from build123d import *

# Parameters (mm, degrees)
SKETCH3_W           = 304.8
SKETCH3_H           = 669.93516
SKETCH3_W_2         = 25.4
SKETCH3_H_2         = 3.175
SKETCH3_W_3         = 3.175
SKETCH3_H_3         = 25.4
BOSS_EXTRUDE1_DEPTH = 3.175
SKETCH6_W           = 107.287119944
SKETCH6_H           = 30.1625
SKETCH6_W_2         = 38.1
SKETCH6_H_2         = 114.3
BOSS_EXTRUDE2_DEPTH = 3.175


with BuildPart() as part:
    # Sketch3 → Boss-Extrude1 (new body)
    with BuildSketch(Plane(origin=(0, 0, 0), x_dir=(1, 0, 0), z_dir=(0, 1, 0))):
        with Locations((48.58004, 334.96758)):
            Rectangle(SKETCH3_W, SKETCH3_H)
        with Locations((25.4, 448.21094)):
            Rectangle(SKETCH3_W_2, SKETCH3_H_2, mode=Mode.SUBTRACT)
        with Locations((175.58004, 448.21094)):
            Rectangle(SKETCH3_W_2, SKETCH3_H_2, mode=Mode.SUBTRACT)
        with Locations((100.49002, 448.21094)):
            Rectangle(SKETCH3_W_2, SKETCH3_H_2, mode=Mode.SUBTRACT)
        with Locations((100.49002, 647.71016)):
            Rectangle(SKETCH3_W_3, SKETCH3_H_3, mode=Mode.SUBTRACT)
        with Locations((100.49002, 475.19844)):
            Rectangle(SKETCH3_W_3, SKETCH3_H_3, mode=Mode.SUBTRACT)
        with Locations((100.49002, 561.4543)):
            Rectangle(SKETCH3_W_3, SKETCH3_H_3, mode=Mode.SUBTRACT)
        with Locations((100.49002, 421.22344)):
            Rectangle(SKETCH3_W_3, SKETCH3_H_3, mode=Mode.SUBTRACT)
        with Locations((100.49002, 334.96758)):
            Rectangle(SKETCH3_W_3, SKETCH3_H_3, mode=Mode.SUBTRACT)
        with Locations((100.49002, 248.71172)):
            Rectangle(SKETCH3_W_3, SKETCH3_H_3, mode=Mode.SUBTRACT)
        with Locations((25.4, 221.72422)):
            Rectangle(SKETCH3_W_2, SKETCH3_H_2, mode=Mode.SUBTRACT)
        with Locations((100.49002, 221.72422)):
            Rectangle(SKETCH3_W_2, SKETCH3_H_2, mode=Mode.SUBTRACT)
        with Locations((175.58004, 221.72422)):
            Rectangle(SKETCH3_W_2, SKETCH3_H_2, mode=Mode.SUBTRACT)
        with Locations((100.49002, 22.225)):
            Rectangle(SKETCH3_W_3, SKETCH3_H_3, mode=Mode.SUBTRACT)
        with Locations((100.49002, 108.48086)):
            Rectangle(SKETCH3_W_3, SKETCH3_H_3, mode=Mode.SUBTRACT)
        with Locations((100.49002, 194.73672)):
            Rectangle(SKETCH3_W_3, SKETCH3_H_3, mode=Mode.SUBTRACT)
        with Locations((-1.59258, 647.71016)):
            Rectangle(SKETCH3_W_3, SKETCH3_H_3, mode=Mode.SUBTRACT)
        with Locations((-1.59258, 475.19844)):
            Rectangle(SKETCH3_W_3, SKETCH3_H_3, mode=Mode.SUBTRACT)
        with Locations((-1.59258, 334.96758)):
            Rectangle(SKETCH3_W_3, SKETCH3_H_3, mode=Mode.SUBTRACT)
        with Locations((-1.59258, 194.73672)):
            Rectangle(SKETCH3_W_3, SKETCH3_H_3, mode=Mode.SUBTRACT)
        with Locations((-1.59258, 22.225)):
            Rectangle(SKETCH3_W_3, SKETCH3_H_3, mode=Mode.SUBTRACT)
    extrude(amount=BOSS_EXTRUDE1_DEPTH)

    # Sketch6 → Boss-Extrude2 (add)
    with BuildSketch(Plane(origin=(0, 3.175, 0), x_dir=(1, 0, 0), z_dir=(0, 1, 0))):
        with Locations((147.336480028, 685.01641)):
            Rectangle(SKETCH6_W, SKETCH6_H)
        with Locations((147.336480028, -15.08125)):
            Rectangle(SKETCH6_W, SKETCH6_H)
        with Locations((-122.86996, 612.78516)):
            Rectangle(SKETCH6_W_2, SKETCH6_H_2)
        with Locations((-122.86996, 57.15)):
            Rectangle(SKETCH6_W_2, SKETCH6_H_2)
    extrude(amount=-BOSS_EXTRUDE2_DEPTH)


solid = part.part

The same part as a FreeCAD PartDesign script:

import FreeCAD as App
import Part
import Sketcher
from FreeCAD import Vector
Q = App.Units.Quantity

doc = App.newDocument("Part")
body = doc.addObject("PartDesign::Body", "Body")

# Sketch on XZ plane
sketch1 = body.newObject("Sketcher::SketchObject", "Sketch")
sketch1.AttachmentSupport = (doc.getObject("XZ_Plane"), [""])
sketch1.MapMode = "FlatFace"
sketch1.addGeometry([
    Part.LineSegment(Vector(-103.8, -669.9, 0), Vector(-103.8, 0, 0)),  # 0
    Part.LineSegment(Vector(-103.8, 0, 0), Vector(201, 0, 0)),  # 1
    Part.LineSegment(Vector(201, 0, 0), Vector(201, -669.9, 0)),  # 2
    Part.LineSegment(Vector(201, -669.9, 0), Vector(-103.8, -669.9, 0)),  # 3
    Part.LineSegment(Vector(0, -9.5, 0), Vector(-3.2, -9.5, 0)),  # 4
    Part.LineSegment(Vector(-3.2, -9.5, 0), Vector(-3.2, -34.9, 0)),  # 5
    Part.LineSegment(Vector(-3.2, -34.9, 0), Vector(0, -34.9, 0)),  # 6
    Part.LineSegment(Vector(0, -34.9, 0), Vector(0, -9.5, 0)),  # 7
    Part.LineSegment(Vector(0, -182, 0), Vector(-3.2, -182, 0)),  # 8
    Part.LineSegment(Vector(-3.2, -182, 0), Vector(-3.2, -207.4, 0)),  # 9
    Part.LineSegment(Vector(-3.2, -207.4, 0), Vector(0, -207.4, 0)),  # 10
    Part.LineSegment(Vector(0, -207.4, 0), Vector(0, -182, 0)),  # 11
    Part.LineSegment(Vector(38.1, -220.1, 0), Vector(12.7, -220.1, 0)),  # 12
    Part.LineSegment(Vector(12.7, -220.1, 0), Vector(12.7, -223.3, 0)),  # 13
    Part.LineSegment(Vector(12.7, -223.3, 0), Vector(38.1, -223.3, 0)),  # 14
    Part.LineSegment(Vector(38.1, -223.3, 0), Vector(38.1, -220.1, 0)),  # 15
    Part.LineSegment(Vector(102.1, -9.5, 0), Vector(98.9, -9.5, 0)),  # 16
    Part.LineSegment(Vector(98.9, -9.5, 0), Vector(98.9, -34.9, 0)),  # 17
    Part.LineSegment(Vector(98.9, -34.9, 0), Vector(102.1, -34.9, 0)),  # 18
    Part.LineSegment(Vector(102.1, -34.9, 0), Vector(102.1, -9.5, 0)),  # 19
    Part.LineSegment(Vector(102.1, -95.8, 0), Vector(98.9, -95.8, 0)),  # 20
    Part.LineSegment(Vector(98.9, -95.8, 0), Vector(98.9, -121.2, 0)),  # 21
    Part.LineSegment(Vector(98.9, -121.2, 0), Vector(102.1, -121.2, 0)),  # 22
    Part.LineSegment(Vector(102.1, -121.2, 0), Vector(102.1, -95.8, 0)),  # 23
    Part.LineSegment(Vector(102.1, -182, 0), Vector(98.9, -182, 0)),  # 24
    Part.LineSegment(Vector(98.9, -182, 0), Vector(98.9, -207.4, 0)),  # 25
    Part.LineSegment(Vector(98.9, -207.4, 0), Vector(102.1, -207.4, 0)),  # 26
    Part.LineSegment(Vector(102.1, -207.4, 0), Vector(102.1, -182, 0)),  # 27
    Part.LineSegment(Vector(113.2, -220.1, 0), Vector(87.8, -220.1, 0)),  # 28
    Part.LineSegment(Vector(87.8, -220.1, 0), Vector(87.8, -223.3, 0)),  # 29
    Part.LineSegment(Vector(87.8, -223.3, 0), Vector(113.2, -223.3, 0)),  # 30
    Part.LineSegment(Vector(113.2, -223.3, 0), Vector(113.2, -220.1, 0)),  # 31
    Part.LineSegment(Vector(102.1, -236, 0), Vector(98.9, -236, 0)),  # 32
    Part.LineSegment(Vector(98.9, -236, 0), Vector(98.9, -261.4, 0)),  # 33
    Part.LineSegment(Vector(98.9, -261.4, 0), Vector(102.1, -261.4, 0)),  # 34
    Part.LineSegment(Vector(102.1, -261.4, 0), Vector(102.1, -236, 0)),  # 35
    Part.LineSegment(Vector(188.3, -220.1, 0), Vector(162.9, -220.1, 0)),  # 36
    Part.LineSegment(Vector(162.9, -220.1, 0), Vector(162.9, -223.3, 0)),  # 37
    Part.LineSegment(Vector(162.9, -223.3, 0), Vector(188.3, -223.3, 0)),  # 38
    Part.LineSegment(Vector(188.3, -223.3, 0), Vector(188.3, -220.1, 0)),  # 39
    Part.LineSegment(Vector(0, -322.3, 0), Vector(-3.2, -322.3, 0)),  # 40
    Part.LineSegment(Vector(-3.2, -322.3, 0), Vector(-3.2, -347.7, 0)),  # 41
    Part.LineSegment(Vector(-3.2, -347.7, 0), Vector(0, -347.7, 0)),  # 42
    Part.LineSegment(Vector(0, -347.7, 0), Vector(0, -322.3, 0)),  # 43
    Part.LineSegment(Vector(0, -462.5, 0), Vector(-3.2, -462.5, 0)),  # 44
    Part.LineSegment(Vector(-3.2, -462.5, 0), Vector(-3.2, -487.9, 0)),  # 45
    Part.LineSegment(Vector(-3.2, -487.9, 0), Vector(0, -487.9, 0)),  # 46
    Part.LineSegment(Vector(0, -487.9, 0), Vector(0, -462.5, 0)),  # 47
    Part.LineSegment(Vector(38.1, -446.6, 0), Vector(12.7, -446.6, 0)),  # 48
    Part.LineSegment(Vector(12.7, -446.6, 0), Vector(12.7, -449.8, 0)),  # 49
    Part.LineSegment(Vector(12.7, -449.8, 0), Vector(38.1, -449.8, 0)),  # 50
    Part.LineSegment(Vector(38.1, -449.8, 0), Vector(38.1, -446.6, 0)),  # 51
    Part.LineSegment(Vector(0, -635, 0), Vector(-3.2, -635, 0)),  # 52
    Part.LineSegment(Vector(-3.2, -635, 0), Vector(-3.2, -660.4, 0)),  # 53
    Part.LineSegment(Vector(-3.2, -660.4, 0), Vector(0, -660.4, 0)),  # 54
    Part.LineSegment(Vector(0, -660.4, 0), Vector(0, -635, 0)),  # 55
    Part.LineSegment(Vector(102.1, -322.3, 0), Vector(98.9, -322.3, 0)),  # 56
    Part.LineSegment(Vector(98.9, -322.3, 0), Vector(98.9, -347.7, 0)),  # 57
    Part.LineSegment(Vector(98.9, -347.7, 0), Vector(102.1, -347.7, 0)),  # 58
    Part.LineSegment(Vector(102.1, -347.7, 0), Vector(102.1, -322.3, 0)),  # 59
    Part.LineSegment(Vector(102.1, -408.5, 0), Vector(98.9, -408.5, 0)),  # 60
    Part.LineSegment(Vector(98.9, -408.5, 0), Vector(98.9, -433.9, 0)),  # 61
    Part.LineSegment(Vector(98.9, -433.9, 0), Vector(102.1, -433.9, 0)),  # 62
    Part.LineSegment(Vector(102.1, -433.9, 0), Vector(102.1, -408.5, 0)),  # 63
    Part.LineSegment(Vector(113.2, -446.6, 0), Vector(87.8, -446.6, 0)),  # 64
    Part.LineSegment(Vector(87.8, -446.6, 0), Vector(87.8, -449.8, 0)),  # 65
    Part.LineSegment(Vector(87.8, -449.8, 0), Vector(113.2, -449.8, 0)),  # 66
    Part.LineSegment(Vector(113.2, -449.8, 0), Vector(113.2, -446.6, 0)),  # 67
    Part.LineSegment(Vector(102.1, -462.5, 0), Vector(98.9, -462.5, 0)),  # 68
    Part.LineSegment(Vector(98.9, -462.5, 0), Vector(98.9, -487.9, 0)),  # 69
    Part.LineSegment(Vector(98.9, -487.9, 0), Vector(102.1, -487.9, 0)),  # 70
    Part.LineSegment(Vector(102.1, -487.9, 0), Vector(102.1, -462.5, 0)),  # 71
    Part.LineSegment(Vector(188.3, -446.6, 0), Vector(162.9, -446.6, 0)),  # 72
    Part.LineSegment(Vector(162.9, -446.6, 0), Vector(162.9, -449.8, 0)),  # 73
    Part.LineSegment(Vector(162.9, -449.8, 0), Vector(188.3, -449.8, 0)),  # 74
    Part.LineSegment(Vector(188.3, -449.8, 0), Vector(188.3, -446.6, 0)),  # 75
    Part.LineSegment(Vector(102.1, -548.8, 0), Vector(98.9, -548.8, 0)),  # 76
    Part.LineSegment(Vector(98.9, -548.8, 0), Vector(98.9, -574.2, 0)),  # 77
    Part.LineSegment(Vector(98.9, -574.2, 0), Vector(102.1, -574.2, 0)),  # 78
    Part.LineSegment(Vector(102.1, -574.2, 0), Vector(102.1, -548.8, 0)),  # 79
    Part.LineSegment(Vector(102.1, -635, 0), Vector(98.9, -635, 0)),  # 80
    Part.LineSegment(Vector(98.9, -635, 0), Vector(98.9, -660.4, 0)),  # 81
    Part.LineSegment(Vector(98.9, -660.4, 0), Vector(102.1, -660.4, 0)),  # 82
    Part.LineSegment(Vector(102.1, -660.4, 0), Vector(102.1, -635, 0)),  # 83
], False)
sketch1.addConstraint([
    Sketcher.Constraint("Coincident", 0, 2, 1, 1),
    Sketcher.Constraint("Coincident", 1, 2, 2, 1),
    Sketcher.Constraint("Coincident", 2, 2, 3, 1),
    Sketcher.Constraint("Coincident", 3, 2, 0, 1),
    Sketcher.Constraint("Coincident", 4, 2, 5, 1),
    Sketcher.Constraint("Coincident", 5, 2, 6, 1),
    Sketcher.Constraint("Coincident", 6, 2, 7, 1),
    Sketcher.Constraint("Coincident", 7, 2, 4, 1),
    Sketcher.Constraint("Coincident", 8, 2, 9, 1),
    Sketcher.Constraint("Coincident", 9, 2, 10, 1),
    Sketcher.Constraint("Coincident", 10, 2, 11, 1),
    Sketcher.Constraint("Coincident", 11, 2, 8, 1),
    Sketcher.Constraint("Coincident", 12, 2, 13, 1),
    Sketcher.Constraint("Coincident", 13, 2, 14, 1),
    Sketcher.Constraint("Coincident", 14, 2, 15, 1),
    Sketcher.Constraint("Coincident", 15, 2, 12, 1),
    Sketcher.Constraint("Coincident", 16, 2, 17, 1),
    Sketcher.Constraint("Coincident", 17, 2, 18, 1),
    Sketcher.Constraint("Coincident", 18, 2, 19, 1),
    Sketcher.Constraint("Coincident", 19, 2, 16, 1),
    Sketcher.Constraint("Coincident", 20, 2, 21, 1),
    Sketcher.Constraint("Coincident", 21, 2, 22, 1),
    Sketcher.Constraint("Coincident", 22, 2, 23, 1),
    Sketcher.Constraint("Coincident", 23, 2, 20, 1),
    Sketcher.Constraint("Coincident", 24, 2, 25, 1),
    Sketcher.Constraint("Coincident", 25, 2, 26, 1),
    Sketcher.Constraint("Coincident", 26, 2, 27, 1),
    Sketcher.Constraint("Coincident", 27, 2, 24, 1),
    Sketcher.Constraint("Coincident", 28, 2, 29, 1),
    Sketcher.Constraint("Coincident", 29, 2, 30, 1),
    Sketcher.Constraint("Coincident", 30, 2, 31, 1),
    Sketcher.Constraint("Coincident", 31, 2, 28, 1),
    Sketcher.Constraint("Coincident", 32, 2, 33, 1),
    Sketcher.Constraint("Coincident", 33, 2, 34, 1),
    Sketcher.Constraint("Coincident", 34, 2, 35, 1),
    Sketcher.Constraint("Coincident", 35, 2, 32, 1),
    Sketcher.Constraint("Coincident", 36, 2, 37, 1),
    Sketcher.Constraint("Coincident", 37, 2, 38, 1),
    Sketcher.Constraint("Coincident", 38, 2, 39, 1),
    Sketcher.Constraint("Coincident", 39, 2, 36, 1),
    Sketcher.Constraint("Coincident", 40, 2, 41, 1),
    Sketcher.Constraint("Coincident", 41, 2, 42, 1),
    Sketcher.Constraint("Coincident", 42, 2, 43, 1),
    Sketcher.Constraint("Coincident", 43, 2, 40, 1),
    Sketcher.Constraint("Coincident", 44, 2, 45, 1),
    Sketcher.Constraint("Coincident", 45, 2, 46, 1),
    Sketcher.Constraint("Coincident", 46, 2, 47, 1),
    Sketcher.Constraint("Coincident", 47, 2, 44, 1),
    Sketcher.Constraint("Coincident", 48, 2, 49, 1),
    Sketcher.Constraint("Coincident", 49, 2, 50, 1),
    Sketcher.Constraint("Coincident", 50, 2, 51, 1),
    Sketcher.Constraint("Coincident", 51, 2, 48, 1),
    Sketcher.Constraint("Coincident", 52, 2, 53, 1),
    Sketcher.Constraint("Coincident", 53, 2, 54, 1),
    Sketcher.Constraint("Coincident", 54, 2, 55, 1),
    Sketcher.Constraint("Coincident", 55, 2, 52, 1),
    Sketcher.Constraint("Coincident", 56, 2, 57, 1),
    Sketcher.Constraint("Coincident", 57, 2, 58, 1),
    Sketcher.Constraint("Coincident", 58, 2, 59, 1),
    Sketcher.Constraint("Coincident", 59, 2, 56, 1),
    Sketcher.Constraint("Coincident", 60, 2, 61, 1),
    Sketcher.Constraint("Coincident", 61, 2, 62, 1),
    Sketcher.Constraint("Coincident", 62, 2, 63, 1),
    Sketcher.Constraint("Coincident", 63, 2, 60, 1),
    Sketcher.Constraint("Coincident", 64, 2, 65, 1),
    Sketcher.Constraint("Coincident", 65, 2, 66, 1),
    Sketcher.Constraint("Coincident", 66, 2, 67, 1),
    Sketcher.Constraint("Coincident", 67, 2, 64, 1),
    Sketcher.Constraint("Coincident", 68, 2, 69, 1),
    Sketcher.Constraint("Coincident", 69, 2, 70, 1),
    Sketcher.Constraint("Coincident", 70, 2, 71, 1),
    Sketcher.Constraint("Coincident", 71, 2, 68, 1),
    Sketcher.Constraint("Coincident", 72, 2, 73, 1),
    Sketcher.Constraint("Coincident", 73, 2, 74, 1),
    Sketcher.Constraint("Coincident", 74, 2, 75, 1),
    Sketcher.Constraint("Coincident", 75, 2, 72, 1),
    Sketcher.Constraint("Coincident", 76, 2, 77, 1),
    Sketcher.Constraint("Coincident", 77, 2, 78, 1),
    Sketcher.Constraint("Coincident", 78, 2, 79, 1),
    Sketcher.Constraint("Coincident", 79, 2, 76, 1),
    Sketcher.Constraint("Coincident", 80, 2, 81, 1),
    Sketcher.Constraint("Coincident", 81, 2, 82, 1),
    Sketcher.Constraint("Coincident", 82, 2, 83, 1),
    Sketcher.Constraint("Coincident", 83, 2, 80, 1),
    Sketcher.Constraint("Vertical", 0),
    Sketcher.Constraint("Horizontal", 1),
    Sketcher.Constraint("Vertical", 2),
    Sketcher.Constraint("Horizontal", 3),
    Sketcher.Constraint("Horizontal", 4),
    Sketcher.Constraint("Vertical", 5),
    Sketcher.Constraint("Horizontal", 6),
    Sketcher.Constraint("Vertical", 7),
    Sketcher.Constraint("Horizontal", 8),
    Sketcher.Constraint("Vertical", 9),
    Sketcher.Constraint("Horizontal", 10),
    Sketcher.Constraint("Vertical", 11),
    Sketcher.Constraint("Horizontal", 12),
    Sketcher.Constraint("Vertical", 13),
    Sketcher.Constraint("Horizontal", 14),
    Sketcher.Constraint("Vertical", 15),
    Sketcher.Constraint("Horizontal", 16),
    Sketcher.Constraint("Vertical", 17),
    Sketcher.Constraint("Horizontal", 18),
    Sketcher.Constraint("Vertical", 19),
    Sketcher.Constraint("Horizontal", 20),
    Sketcher.Constraint("Vertical", 21),
    Sketcher.Constraint("Horizontal", 22),
    Sketcher.Constraint("Vertical", 23),
    Sketcher.Constraint("Horizontal", 24),
    Sketcher.Constraint("Vertical", 25),
    Sketcher.Constraint("Horizontal", 26),
    Sketcher.Constraint("Vertical", 27),
    Sketcher.Constraint("Horizontal", 28),
    Sketcher.Constraint("Vertical", 29),
    Sketcher.Constraint("Horizontal", 30),
    Sketcher.Constraint("Vertical", 31),
    Sketcher.Constraint("Horizontal", 32),
    Sketcher.Constraint("Vertical", 33),
    Sketcher.Constraint("Horizontal", 34),
    Sketcher.Constraint("Vertical", 35),
    Sketcher.Constraint("Horizontal", 36),
    Sketcher.Constraint("Vertical", 37),
    Sketcher.Constraint("Horizontal", 38),
    Sketcher.Constraint("Vertical", 39),
    Sketcher.Constraint("Horizontal", 40),
    Sketcher.Constraint("Vertical", 41),
    Sketcher.Constraint("Horizontal", 42),
    Sketcher.Constraint("Vertical", 43),
    Sketcher.Constraint("Horizontal", 44),
    Sketcher.Constraint("Vertical", 45),
    Sketcher.Constraint("Horizontal", 46),
    Sketcher.Constraint("Vertical", 47),
    Sketcher.Constraint("Horizontal", 48),
    Sketcher.Constraint("Vertical", 49),
    Sketcher.Constraint("Horizontal", 50),
    Sketcher.Constraint("Vertical", 51),
    Sketcher.Constraint("Horizontal", 52),
    Sketcher.Constraint("Vertical", 53),
    Sketcher.Constraint("Horizontal", 54),
    Sketcher.Constraint("Vertical", 55),
    Sketcher.Constraint("Horizontal", 56),
    Sketcher.Constraint("Vertical", 57),
    Sketcher.Constraint("Horizontal", 58),
    Sketcher.Constraint("Vertical", 59),
    Sketcher.Constraint("Horizontal", 60),
    Sketcher.Constraint("Vertical", 61),
    Sketcher.Constraint("Horizontal", 62),
    Sketcher.Constraint("Vertical", 63),
    Sketcher.Constraint("Horizontal", 64),
    Sketcher.Constraint("Vertical", 65),
    Sketcher.Constraint("Horizontal", 66),
    Sketcher.Constraint("Vertical", 67),
    Sketcher.Constraint("Horizontal", 68),
    Sketcher.Constraint("Vertical", 69),
    Sketcher.Constraint("Horizontal", 70),
    Sketcher.Constraint("Vertical", 71),
    Sketcher.Constraint("Horizontal", 72),
    Sketcher.Constraint("Vertical", 73),
    Sketcher.Constraint("Horizontal", 74),
    Sketcher.Constraint("Vertical", 75),
    Sketcher.Constraint("Horizontal", 76),
    Sketcher.Constraint("Vertical", 77),
    Sketcher.Constraint("Horizontal", 78),
    Sketcher.Constraint("Vertical", 79),
    Sketcher.Constraint("Horizontal", 80),
    Sketcher.Constraint("Vertical", 81),
    Sketcher.Constraint("Horizontal", 82),
    Sketcher.Constraint("Vertical", 83),
    Sketcher.Constraint("PointOnObject", 0, 2, -1),
    Sketcher.Constraint("Horizontal", 7, 2, 16, 2),
    Sketcher.Constraint("Horizontal", 6, 2, 17, 2),
    Sketcher.Constraint("Horizontal", 11, 2, 24, 2),
    Sketcher.Constraint("Horizontal", 10, 2, 25, 2),
    Sketcher.Constraint("Horizontal", 15, 2, 28, 2),
    Sketcher.Constraint("Horizontal", 14, 2, 29, 2),
    Sketcher.Constraint("Horizontal", 31, 2, 36, 2),
    Sketcher.Constraint("Horizontal", 30, 2, 37, 2),
    Sketcher.Constraint("Horizontal", 43, 2, 56, 2),
    Sketcher.Constraint("Horizontal", 42, 2, 57, 2),
    Sketcher.Constraint("Horizontal", 51, 2, 64, 2),
    Sketcher.Constraint("Horizontal", 50, 2, 65, 2),
    Sketcher.Constraint("Horizontal", 47, 2, 68, 2),
    Sketcher.Constraint("Horizontal", 46, 2, 69, 2),
    Sketcher.Constraint("Horizontal", 67, 2, 72, 2),
    Sketcher.Constraint("Horizontal", 66, 2, 73, 2),
    Sketcher.Constraint("Horizontal", 55, 2, 80, 2),
    Sketcher.Constraint("Horizontal", 54, 2, 81, 2),
    Sketcher.Constraint("Vertical", 5, 2, 8, 2),
    Sketcher.Constraint("Vertical", 7, 2, 10, 2),
    Sketcher.Constraint("Vertical", 17, 2, 20, 2),
    Sketcher.Constraint("Vertical", 19, 2, 22, 2),
    Sketcher.Constraint("Vertical", 21, 2, 24, 2),
    Sketcher.Constraint("Vertical", 23, 2, 26, 2),
    Sketcher.Constraint("Vertical", 25, 2, 32, 2),
    Sketcher.Constraint("Vertical", 27, 2, 34, 2),
    Sketcher.Constraint("Vertical", 9, 2, 40, 2),
    Sketcher.Constraint("Vertical", 11, 2, 42, 2),
    Sketcher.Constraint("Vertical", 41, 2, 44, 2),
    Sketcher.Constraint("Vertical", 43, 2, 46, 2),
    Sketcher.Constraint("Vertical", 13, 2, 48, 2),
    Sketcher.Constraint("Vertical", 15, 2, 50, 2),
    Sketcher.Constraint("Vertical", 45, 2, 52, 2),
    Sketcher.Constraint("Vertical", 47, 2, 54, 2),
    Sketcher.Constraint("Vertical", 33, 2, 56, 2),
    Sketcher.Constraint("Vertical", 35, 2, 58, 2),
    Sketcher.Constraint("Vertical", 57, 2, 60, 2),
    Sketcher.Constraint("Vertical", 59, 2, 62, 2),
    Sketcher.Constraint("Vertical", 29, 2, 64, 2),
    Sketcher.Constraint("Vertical", 31, 2, 66, 2),
    Sketcher.Constraint("Vertical", 61, 2, 68, 2),
    Sketcher.Constraint("Vertical", 63, 2, 70, 2),
    Sketcher.Constraint("Vertical", 37, 2, 72, 2),
    Sketcher.Constraint("Vertical", 39, 2, 74, 2),
    Sketcher.Constraint("Vertical", 69, 2, 76, 2),
    Sketcher.Constraint("Vertical", 71, 2, 78, 2),
    Sketcher.Constraint("Vertical", 77, 2, 80, 2),
    Sketcher.Constraint("Vertical", 79, 2, 82, 2),
    Sketcher.Constraint("Equal", 10, 16),
    Sketcher.Constraint("Equal", 14, 28),
    Sketcher.Constraint("Equal", 30, 36),
    Sketcher.Constraint("Equal", 74, 5),
    Sketcher.Constraint("Equal", 7, 9),
    Sketcher.Constraint("Equal", 82, 13),
    Sketcher.Constraint("Equal", 19, 21),
    Sketcher.Constraint("Equal", 27, 33),
    Sketcher.Constraint("Equal", 35, 41),
    Sketcher.Constraint("Equal", 43, 45),
    Sketcher.Constraint("Equal", 39, 49),
    Sketcher.Constraint("Equal", 47, 53),
    Sketcher.Constraint("Equal", 59, 61),
    Sketcher.Constraint("Equal", 71, 77),
    Sketcher.Constraint("DistanceX", 1, 1, 1, 2, Q("12 in")),
    Sketcher.Constraint("DistanceX", 12, 2, 12, 1, Q("1 in")),
    Sketcher.Constraint("DistanceX", -1, 1, 12, 2, Q("0.5 in")),
    Sketcher.Constraint("DistanceX", 4, 2, 4, 1, Q("0.125 in")),
    Sketcher.Constraint("DistanceY", 0, 1, 0, 2, Q("26.3754 in")),
    Sketcher.Constraint("DistanceY", 4, 2, -1, 1, Q("0.375 in")),
    Sketcher.Constraint("DistanceX", 0, 2, -1, 1, Q("4.0874 in")),
    Sketcher.Constraint("DistanceX", 4, 2, -1, 1, Q("0.1252 in")),
    Sketcher.Constraint("DistanceY", 8, 2, -1, 1, Q("7.1668 in")),
    Sketcher.Constraint("DistanceY", 12, 2, -1, 1, Q("8.6668 in")),
    Sketcher.Constraint("DistanceX", -1, 1, 16, 2, Q("3.8938 in")),
    Sketcher.Constraint("DistanceY", 20, 2, -1, 1, Q("3.7709 in")),
    Sketcher.Constraint("DistanceX", -1, 1, 28, 2, Q("3.4563 in")),
    Sketcher.Constraint("DistanceY", 32, 2, -1, 1, Q("9.2918 in")),
    Sketcher.Constraint("DistanceX", -1, 1, 36, 2, Q("6.4126 in")),
    Sketcher.Constraint("DistanceY", 40, 2, -1, 1, Q("12.6877 in")),
    Sketcher.Constraint("DistanceY", 44, 2, -1, 1, Q("18.2086 in")),
    Sketcher.Constraint("DistanceY", 48, 2, -1, 1, Q("17.5836 in")),
    Sketcher.Constraint("DistanceY", 52, 2, -1, 1, Q("25.0004 in")),
    Sketcher.Constraint("DistanceY", 60, 2, -1, 1, Q("16.0836 in")),
    Sketcher.Constraint("DistanceY", 76, 2, -1, 1, Q("21.6045 in")),
])
pad1 = body.newObject("PartDesign::Pad", "Pad")
pad1.Profile = sketch1
pad1.Length = Q("0.125 in")
pad1.Reversed = True

# Sketch on XZ plane
sketch2 = body.newObject("Sketcher::SketchObject", "Sketch001")
sketch2.AttachmentSupport = (doc.getObject("XZ_Plane"), [""])
sketch2.MapMode = "FlatFace"
sketch2.AttachmentOffset = App.Placement(Vector(0, 0, -0.125 * 25.4), App.Rotation())
sketch2.addGeometry([
    Part.LineSegment(Vector(94, -700, 0), Vector(94, -670, 0)),  # 0
    Part.LineSegment(Vector(94, -670, 0), Vector(201, -670, 0)),  # 1
    Part.LineSegment(Vector(201, -670, 0), Vector(201, -700, 0)),  # 2
    Part.LineSegment(Vector(201, -700, 0), Vector(94, -700, 0)),  # 3
    Part.LineSegment(Vector(94, 0, 0), Vector(94, 30, 0)),  # 4
    Part.LineSegment(Vector(94, 30, 0), Vector(201, 30, 0)),  # 5
    Part.LineSegment(Vector(201, 30, 0), Vector(201, 0, 0)),  # 6
    Part.LineSegment(Vector(201, 0, 0), Vector(94, 0, 0)),  # 7
    Part.LineSegment(Vector(-142, -670, 0), Vector(-142, -556, 0)),  # 8
    Part.LineSegment(Vector(-142, -556, 0), Vector(-104, -556, 0)),  # 9
    Part.LineSegment(Vector(-104, -556, 0), Vector(-104, -670, 0)),  # 10
    Part.LineSegment(Vector(-104, -670, 0), Vector(-142, -670, 0)),  # 11
    Part.LineSegment(Vector(-142, -114, 0), Vector(-142, 0, 0)),  # 12
    Part.LineSegment(Vector(-142, 0, 0), Vector(-104, 0, 0)),  # 13
    Part.LineSegment(Vector(-104, 0, 0), Vector(-104, -114, 0)),  # 14
    Part.LineSegment(Vector(-104, -114, 0), Vector(-142, -114, 0)),  # 15
], False)
sketch2.addConstraint([
    Sketcher.Constraint("Coincident", 0, 2, 1, 1),
    Sketcher.Constraint("Coincident", 1, 2, 2, 1),
    Sketcher.Constraint("Coincident", 2, 2, 3, 1),
    Sketcher.Constraint("Coincident", 3, 2, 0, 1),
    Sketcher.Constraint("Coincident", 4, 2, 5, 1),
    Sketcher.Constraint("Coincident", 5, 2, 6, 1),
    Sketcher.Constraint("Coincident", 6, 2, 7, 1),
    Sketcher.Constraint("Coincident", 7, 2, 4, 1),
    Sketcher.Constraint("Coincident", 8, 2, 9, 1),
    Sketcher.Constraint("Coincident", 9, 2, 10, 1),
    Sketcher.Constraint("Coincident", 10, 2, 11, 1),
    Sketcher.Constraint("Coincident", 11, 2, 8, 1),
    Sketcher.Constraint("Coincident", 12, 2, 13, 1),
    Sketcher.Constraint("Coincident", 13, 2, 14, 1),
    Sketcher.Constraint("Coincident", 14, 2, 15, 1),
    Sketcher.Constraint("Coincident", 15, 2, 12, 1),
    Sketcher.Constraint("Vertical", 0),
    Sketcher.Constraint("Horizontal", 1),
    Sketcher.Constraint("Vertical", 2),
    Sketcher.Constraint("Horizontal", 3),
    Sketcher.Constraint("Vertical", 4),
    Sketcher.Constraint("Horizontal", 5),
    Sketcher.Constraint("Vertical", 6),
    Sketcher.Constraint("Horizontal", 7),
    Sketcher.Constraint("Vertical", 8),
    Sketcher.Constraint("Horizontal", 9),
    Sketcher.Constraint("Vertical", 10),
    Sketcher.Constraint("Horizontal", 11),
    Sketcher.Constraint("Vertical", 12),
    Sketcher.Constraint("Horizontal", 13),
    Sketcher.Constraint("Vertical", 14),
    Sketcher.Constraint("Horizontal", 15),
    Sketcher.Constraint("PointOnObject", 6, 2, -1),
    Sketcher.Constraint("PointOnObject", 12, 2, -1),
    Sketcher.Constraint("Horizontal", 1, 2, 10, 2),
    Sketcher.Constraint("Vertical", 3, 2, 4, 2),
    Sketcher.Constraint("Vertical", 2, 2, 5, 2),
    Sketcher.Constraint("Vertical", 11, 2, 12, 2),
    Sketcher.Constraint("Vertical", 10, 2, 13, 2),
    Sketcher.Constraint("Equal", 2, 4),
    Sketcher.Constraint("Equal", 10, 12),
    Sketcher.Constraint("DistanceX", 9, 1, 9, 2, Q("1.5 in")),
    Sketcher.Constraint("DistanceY", 8, 1, 8, 2, Q("4.5 in")),
    Sketcher.Constraint("DistanceX", 9, 2, 1, 2, Q("12 in")),
    Sketcher.Constraint("DistanceY", 0, 1, 0, 2, Q("1.1875 in")),
    Sketcher.Constraint("DistanceY", 0, 2, -1, 1, Q("26.3754 in")),
    Sketcher.Constraint("DistanceX", -1, 1, 1, 2, Q("7.9126 in")),
    Sketcher.Constraint("DistanceX", 1, 1, 1, 2, 107.28712),
])
pad2 = body.newObject("PartDesign::Pad", "Pad001")
pad2.Profile = sketch2
pad2.Length = Q("0.125 in")

doc.recompute()
